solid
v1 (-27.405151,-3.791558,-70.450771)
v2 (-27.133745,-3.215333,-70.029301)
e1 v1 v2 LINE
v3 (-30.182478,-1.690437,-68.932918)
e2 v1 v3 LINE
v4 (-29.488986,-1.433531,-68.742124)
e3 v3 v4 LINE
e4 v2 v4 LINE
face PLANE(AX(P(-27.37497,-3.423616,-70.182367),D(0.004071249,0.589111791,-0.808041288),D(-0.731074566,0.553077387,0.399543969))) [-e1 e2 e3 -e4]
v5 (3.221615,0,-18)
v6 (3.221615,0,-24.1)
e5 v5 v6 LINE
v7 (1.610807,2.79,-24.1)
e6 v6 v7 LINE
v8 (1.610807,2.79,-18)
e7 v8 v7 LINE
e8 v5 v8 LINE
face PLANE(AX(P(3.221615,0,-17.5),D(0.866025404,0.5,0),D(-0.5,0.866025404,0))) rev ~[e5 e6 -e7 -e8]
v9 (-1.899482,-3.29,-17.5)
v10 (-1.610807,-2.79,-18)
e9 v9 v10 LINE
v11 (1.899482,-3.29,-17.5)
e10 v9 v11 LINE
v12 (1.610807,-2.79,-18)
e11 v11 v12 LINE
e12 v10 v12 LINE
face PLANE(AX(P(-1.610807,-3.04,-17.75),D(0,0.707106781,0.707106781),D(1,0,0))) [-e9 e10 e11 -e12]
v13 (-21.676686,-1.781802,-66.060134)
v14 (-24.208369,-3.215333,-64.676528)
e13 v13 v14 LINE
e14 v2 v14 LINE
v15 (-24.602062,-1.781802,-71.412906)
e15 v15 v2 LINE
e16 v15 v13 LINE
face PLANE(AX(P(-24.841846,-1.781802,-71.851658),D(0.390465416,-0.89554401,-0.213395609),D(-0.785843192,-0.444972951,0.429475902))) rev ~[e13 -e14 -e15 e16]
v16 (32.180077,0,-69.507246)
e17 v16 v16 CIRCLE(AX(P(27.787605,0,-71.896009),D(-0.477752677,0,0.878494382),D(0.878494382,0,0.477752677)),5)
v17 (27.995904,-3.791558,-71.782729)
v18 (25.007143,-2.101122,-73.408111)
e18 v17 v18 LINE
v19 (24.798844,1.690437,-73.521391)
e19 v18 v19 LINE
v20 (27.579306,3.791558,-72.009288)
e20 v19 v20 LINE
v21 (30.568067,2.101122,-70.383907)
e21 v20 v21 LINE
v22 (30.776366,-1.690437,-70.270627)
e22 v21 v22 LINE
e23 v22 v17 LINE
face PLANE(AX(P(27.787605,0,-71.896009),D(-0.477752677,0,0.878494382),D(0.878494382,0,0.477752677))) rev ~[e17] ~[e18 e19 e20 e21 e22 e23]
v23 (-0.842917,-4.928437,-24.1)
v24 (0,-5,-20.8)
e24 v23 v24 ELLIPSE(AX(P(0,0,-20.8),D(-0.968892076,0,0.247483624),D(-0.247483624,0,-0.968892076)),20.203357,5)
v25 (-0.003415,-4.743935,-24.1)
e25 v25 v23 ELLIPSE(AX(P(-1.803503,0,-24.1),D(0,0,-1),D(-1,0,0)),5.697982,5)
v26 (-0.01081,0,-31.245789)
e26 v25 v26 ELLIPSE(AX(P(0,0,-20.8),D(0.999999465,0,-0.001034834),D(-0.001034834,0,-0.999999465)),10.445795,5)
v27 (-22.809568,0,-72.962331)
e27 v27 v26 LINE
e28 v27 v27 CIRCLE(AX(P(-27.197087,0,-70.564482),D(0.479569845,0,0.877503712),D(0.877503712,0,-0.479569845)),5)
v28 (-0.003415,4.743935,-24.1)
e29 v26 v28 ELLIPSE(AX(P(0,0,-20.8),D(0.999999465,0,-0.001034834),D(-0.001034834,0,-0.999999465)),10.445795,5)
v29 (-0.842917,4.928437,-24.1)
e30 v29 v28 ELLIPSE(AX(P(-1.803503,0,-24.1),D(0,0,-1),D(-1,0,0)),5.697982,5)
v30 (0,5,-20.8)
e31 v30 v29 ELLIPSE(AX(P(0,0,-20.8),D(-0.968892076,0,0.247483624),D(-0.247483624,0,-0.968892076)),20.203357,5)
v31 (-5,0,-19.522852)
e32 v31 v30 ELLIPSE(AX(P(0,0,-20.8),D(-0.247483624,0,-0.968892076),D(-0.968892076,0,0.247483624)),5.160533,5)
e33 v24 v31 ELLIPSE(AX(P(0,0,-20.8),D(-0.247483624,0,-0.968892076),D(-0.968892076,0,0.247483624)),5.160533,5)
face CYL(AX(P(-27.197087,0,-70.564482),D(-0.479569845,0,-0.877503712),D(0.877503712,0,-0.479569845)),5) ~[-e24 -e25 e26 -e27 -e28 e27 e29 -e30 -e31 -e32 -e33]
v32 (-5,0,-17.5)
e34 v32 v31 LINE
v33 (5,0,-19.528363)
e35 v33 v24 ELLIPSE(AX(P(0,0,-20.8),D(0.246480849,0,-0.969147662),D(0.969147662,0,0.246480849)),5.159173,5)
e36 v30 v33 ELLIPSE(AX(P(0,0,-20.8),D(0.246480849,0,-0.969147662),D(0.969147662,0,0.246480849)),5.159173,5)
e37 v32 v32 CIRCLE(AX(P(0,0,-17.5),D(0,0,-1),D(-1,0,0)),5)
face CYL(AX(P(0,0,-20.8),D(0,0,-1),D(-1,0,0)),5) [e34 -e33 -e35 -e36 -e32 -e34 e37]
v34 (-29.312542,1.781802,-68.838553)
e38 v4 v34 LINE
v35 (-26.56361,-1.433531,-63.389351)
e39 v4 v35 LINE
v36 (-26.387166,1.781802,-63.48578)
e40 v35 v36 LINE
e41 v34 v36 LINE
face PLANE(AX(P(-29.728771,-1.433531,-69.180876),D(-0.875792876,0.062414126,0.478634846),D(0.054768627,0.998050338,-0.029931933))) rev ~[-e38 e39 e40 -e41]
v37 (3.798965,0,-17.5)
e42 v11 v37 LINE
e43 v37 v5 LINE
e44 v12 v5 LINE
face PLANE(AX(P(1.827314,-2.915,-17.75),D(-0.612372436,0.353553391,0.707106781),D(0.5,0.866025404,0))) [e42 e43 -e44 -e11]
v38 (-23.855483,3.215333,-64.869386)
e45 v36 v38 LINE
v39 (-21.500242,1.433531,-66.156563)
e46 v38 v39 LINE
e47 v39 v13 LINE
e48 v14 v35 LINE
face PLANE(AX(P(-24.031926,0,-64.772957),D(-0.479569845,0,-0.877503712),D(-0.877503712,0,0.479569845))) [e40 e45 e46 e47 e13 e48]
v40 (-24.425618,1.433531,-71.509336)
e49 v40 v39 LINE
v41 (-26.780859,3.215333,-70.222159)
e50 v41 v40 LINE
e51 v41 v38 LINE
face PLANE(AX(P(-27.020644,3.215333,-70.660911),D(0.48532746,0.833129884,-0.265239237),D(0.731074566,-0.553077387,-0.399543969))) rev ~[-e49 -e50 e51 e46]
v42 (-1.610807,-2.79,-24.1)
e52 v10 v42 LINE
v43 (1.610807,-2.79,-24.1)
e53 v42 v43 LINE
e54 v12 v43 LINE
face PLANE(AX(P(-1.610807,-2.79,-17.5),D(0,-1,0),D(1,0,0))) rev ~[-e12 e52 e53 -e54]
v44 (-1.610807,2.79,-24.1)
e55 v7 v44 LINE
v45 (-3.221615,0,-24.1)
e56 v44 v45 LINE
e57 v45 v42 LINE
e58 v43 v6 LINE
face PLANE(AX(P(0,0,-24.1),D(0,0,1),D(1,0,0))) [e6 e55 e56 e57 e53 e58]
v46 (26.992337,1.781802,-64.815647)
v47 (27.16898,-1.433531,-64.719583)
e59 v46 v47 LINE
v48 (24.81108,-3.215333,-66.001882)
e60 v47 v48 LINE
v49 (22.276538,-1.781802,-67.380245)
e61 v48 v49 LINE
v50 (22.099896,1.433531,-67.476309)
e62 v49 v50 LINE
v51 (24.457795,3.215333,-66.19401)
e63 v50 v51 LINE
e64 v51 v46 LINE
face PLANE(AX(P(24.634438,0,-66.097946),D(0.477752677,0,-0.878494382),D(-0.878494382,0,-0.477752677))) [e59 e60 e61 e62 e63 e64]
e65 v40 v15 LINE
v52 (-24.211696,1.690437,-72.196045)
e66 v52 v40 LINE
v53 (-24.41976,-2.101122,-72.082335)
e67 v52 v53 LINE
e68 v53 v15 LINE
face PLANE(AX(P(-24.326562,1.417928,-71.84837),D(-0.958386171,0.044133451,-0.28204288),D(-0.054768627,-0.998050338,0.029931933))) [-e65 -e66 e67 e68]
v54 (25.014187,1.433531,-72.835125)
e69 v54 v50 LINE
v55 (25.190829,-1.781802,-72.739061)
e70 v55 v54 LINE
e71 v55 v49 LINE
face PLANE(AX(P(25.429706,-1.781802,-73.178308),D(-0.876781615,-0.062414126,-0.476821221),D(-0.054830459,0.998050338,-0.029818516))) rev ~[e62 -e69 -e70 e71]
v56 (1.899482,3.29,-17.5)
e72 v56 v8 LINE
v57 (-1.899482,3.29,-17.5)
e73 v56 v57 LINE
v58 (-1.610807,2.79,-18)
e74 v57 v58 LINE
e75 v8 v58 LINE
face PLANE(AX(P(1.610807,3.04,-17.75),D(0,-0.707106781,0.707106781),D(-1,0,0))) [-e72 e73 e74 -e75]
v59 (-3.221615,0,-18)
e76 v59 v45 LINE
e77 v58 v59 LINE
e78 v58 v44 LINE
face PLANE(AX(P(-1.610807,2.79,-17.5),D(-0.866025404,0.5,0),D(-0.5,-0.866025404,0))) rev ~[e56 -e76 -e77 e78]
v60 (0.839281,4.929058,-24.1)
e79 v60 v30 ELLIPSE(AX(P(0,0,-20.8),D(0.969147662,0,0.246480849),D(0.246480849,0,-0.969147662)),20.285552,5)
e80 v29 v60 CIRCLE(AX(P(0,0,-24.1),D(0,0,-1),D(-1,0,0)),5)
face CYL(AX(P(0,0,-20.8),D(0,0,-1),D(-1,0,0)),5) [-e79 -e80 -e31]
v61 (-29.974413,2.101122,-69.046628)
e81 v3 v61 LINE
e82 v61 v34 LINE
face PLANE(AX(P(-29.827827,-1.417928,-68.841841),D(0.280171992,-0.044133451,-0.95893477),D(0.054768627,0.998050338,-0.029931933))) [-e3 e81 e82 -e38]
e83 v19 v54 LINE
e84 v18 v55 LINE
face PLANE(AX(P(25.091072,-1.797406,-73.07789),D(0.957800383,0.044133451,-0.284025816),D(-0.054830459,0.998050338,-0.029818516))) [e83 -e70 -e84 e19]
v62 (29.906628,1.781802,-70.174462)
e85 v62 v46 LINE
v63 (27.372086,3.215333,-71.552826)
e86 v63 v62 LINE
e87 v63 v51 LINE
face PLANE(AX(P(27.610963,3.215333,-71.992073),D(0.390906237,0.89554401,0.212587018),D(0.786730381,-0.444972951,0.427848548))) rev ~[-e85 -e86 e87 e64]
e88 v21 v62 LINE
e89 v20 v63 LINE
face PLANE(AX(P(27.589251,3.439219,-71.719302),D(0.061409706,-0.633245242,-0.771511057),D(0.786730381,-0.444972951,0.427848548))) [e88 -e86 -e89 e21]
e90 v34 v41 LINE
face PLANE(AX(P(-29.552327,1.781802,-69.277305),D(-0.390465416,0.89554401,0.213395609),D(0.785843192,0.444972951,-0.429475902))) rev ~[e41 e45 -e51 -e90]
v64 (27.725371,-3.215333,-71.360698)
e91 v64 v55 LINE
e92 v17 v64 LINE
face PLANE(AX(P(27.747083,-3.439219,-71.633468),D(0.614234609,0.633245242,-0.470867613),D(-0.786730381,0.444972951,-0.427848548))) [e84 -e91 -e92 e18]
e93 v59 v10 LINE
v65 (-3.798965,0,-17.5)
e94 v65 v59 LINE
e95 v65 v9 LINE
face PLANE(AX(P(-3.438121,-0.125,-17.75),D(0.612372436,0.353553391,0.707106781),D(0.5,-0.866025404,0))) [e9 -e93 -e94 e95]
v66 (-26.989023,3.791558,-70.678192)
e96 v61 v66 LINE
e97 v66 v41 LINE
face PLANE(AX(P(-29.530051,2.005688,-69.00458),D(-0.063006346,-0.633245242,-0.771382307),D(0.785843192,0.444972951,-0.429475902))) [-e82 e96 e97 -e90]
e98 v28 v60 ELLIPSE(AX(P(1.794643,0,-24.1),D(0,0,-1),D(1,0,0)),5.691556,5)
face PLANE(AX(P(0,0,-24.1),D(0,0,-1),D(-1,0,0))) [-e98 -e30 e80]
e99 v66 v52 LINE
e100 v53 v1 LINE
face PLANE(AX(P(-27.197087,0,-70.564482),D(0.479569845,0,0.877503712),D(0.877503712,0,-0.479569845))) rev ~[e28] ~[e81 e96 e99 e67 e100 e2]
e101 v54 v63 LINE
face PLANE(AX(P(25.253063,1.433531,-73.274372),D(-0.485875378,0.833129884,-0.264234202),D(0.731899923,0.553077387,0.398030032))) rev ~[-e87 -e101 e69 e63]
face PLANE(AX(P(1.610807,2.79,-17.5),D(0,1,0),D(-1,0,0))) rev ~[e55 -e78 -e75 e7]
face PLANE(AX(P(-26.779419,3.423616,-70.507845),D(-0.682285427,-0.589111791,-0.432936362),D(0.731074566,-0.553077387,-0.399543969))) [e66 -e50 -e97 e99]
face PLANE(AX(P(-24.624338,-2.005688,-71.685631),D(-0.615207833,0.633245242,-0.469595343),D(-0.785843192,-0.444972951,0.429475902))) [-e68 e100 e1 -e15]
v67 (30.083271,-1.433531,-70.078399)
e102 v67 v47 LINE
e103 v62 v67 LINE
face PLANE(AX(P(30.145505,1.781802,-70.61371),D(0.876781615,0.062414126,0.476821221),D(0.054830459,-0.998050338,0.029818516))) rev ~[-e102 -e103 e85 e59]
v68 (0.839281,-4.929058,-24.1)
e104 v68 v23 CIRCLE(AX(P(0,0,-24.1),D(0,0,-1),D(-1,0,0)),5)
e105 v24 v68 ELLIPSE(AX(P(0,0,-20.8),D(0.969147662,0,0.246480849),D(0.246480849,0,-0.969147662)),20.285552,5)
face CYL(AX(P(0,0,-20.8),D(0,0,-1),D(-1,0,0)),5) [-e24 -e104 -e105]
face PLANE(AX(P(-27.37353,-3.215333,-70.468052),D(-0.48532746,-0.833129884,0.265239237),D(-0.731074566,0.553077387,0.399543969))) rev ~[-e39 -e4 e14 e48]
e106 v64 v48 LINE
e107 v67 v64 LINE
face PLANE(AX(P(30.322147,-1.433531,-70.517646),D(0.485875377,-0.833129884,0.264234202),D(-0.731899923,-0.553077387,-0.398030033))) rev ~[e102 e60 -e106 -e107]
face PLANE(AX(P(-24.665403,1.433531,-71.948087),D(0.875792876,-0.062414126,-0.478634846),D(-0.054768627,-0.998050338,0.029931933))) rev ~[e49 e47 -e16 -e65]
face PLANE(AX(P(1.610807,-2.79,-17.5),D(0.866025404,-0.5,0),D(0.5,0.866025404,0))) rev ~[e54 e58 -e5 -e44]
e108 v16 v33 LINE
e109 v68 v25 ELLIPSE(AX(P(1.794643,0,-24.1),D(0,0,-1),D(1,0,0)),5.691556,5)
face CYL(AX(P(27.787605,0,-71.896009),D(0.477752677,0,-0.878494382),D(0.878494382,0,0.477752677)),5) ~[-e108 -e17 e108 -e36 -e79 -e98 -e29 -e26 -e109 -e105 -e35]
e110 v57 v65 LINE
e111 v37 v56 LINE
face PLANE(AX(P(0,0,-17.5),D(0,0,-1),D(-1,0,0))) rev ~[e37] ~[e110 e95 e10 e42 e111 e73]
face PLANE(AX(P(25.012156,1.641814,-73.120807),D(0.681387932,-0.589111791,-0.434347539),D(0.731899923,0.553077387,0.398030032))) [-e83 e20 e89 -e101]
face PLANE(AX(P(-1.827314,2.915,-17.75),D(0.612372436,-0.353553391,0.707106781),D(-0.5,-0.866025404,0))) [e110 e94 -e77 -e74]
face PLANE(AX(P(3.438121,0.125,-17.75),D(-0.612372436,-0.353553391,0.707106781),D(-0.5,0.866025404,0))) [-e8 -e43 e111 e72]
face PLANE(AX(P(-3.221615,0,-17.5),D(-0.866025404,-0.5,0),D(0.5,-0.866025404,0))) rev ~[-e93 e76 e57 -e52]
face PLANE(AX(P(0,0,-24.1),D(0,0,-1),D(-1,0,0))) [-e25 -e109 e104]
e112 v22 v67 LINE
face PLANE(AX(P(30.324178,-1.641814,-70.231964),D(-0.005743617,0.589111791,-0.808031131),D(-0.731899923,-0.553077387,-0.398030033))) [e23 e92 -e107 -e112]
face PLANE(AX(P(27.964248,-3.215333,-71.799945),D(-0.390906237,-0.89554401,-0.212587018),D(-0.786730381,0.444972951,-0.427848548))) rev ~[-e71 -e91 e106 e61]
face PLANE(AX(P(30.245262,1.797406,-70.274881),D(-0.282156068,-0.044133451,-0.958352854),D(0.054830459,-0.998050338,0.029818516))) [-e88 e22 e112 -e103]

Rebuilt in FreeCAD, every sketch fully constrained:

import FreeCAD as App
import Part
import Sketcher
Q = App.Units.Quantity


def edges_at(feature, points):
    """Names of the edges that pass closest to the given points."""
    edges = feature.Shape.Edges
    near = lambda p: min(range(len(edges)), key=lambda i: edges[i].distToShape(Part.Vertex(*p))[0])
    return sorted({f"Edge{near(p) + 1}" for p in points})


def add_polygon(sketch, points):
    """Adds a closed chain of lines whose ends are joined by coincident constraints."""
    first, n = sketch.GeometryCount, len(points)
    for a, b in zip(points, points[1:] + points[:1]):
        sketch.addGeometry(Part.LineSegment(App.Vector(*a, 0), App.Vector(*b, 0)), False)
    for i in range(n):
        sketch.addConstraint(Sketcher.Constraint("Coincident", first + i, 2, first + (i + 1) % n, 1))

doc = App.newDocument("Part")
body = doc.addObject("PartDesign::Body", "Body")

# Sketch on XZ plane
sketch1 = body.newObject("Sketcher::SketchObject", "Sketch")
sketch1.AttachmentSupport = (doc.getObject("XZ_Plane"), [""])
sketch1.MapMode = "FlatFace"
add_polygon(sketch1, [(-5, -24), (-5, -18), (0, -18), (0, -24)])  # lines 0-3
sketch1.addConstraint(Sketcher.Constraint("Vertical", 0))
sketch1.addConstraint(Sketcher.Constraint("Horizontal", 1))
sketch1.addConstraint(Sketcher.Constraint("Vertical", 2))
sketch1.addConstraint(Sketcher.Constraint("Horizontal", 3))
sketch1.addConstraint(Sketcher.Constraint("PointOnObject", 1, 2, -2))
sketch1.addConstraint(Sketcher.Constraint("DistanceX", 1, 1, 1, 2, 5.0))
sketch1.addConstraint(Sketcher.Constraint("DistanceY", 0, 1, 0, 2, 6.6))
sketch1.addConstraint(Sketcher.Constraint("DistanceY", 0, 2, -1, 1, 17.5))
revolution = body.newObject("PartDesign::Revolution", "Revolution")
revolution.Profile = sketch1
revolution.ReferenceAxis = (sketch1, ["V_Axis"])
revolution.Angle = 360

# Sketch on an angled plane
sketch2 = body.newObject("Sketcher::SketchObject", "Sketch001")
sketch2.Placement = App.Placement(App.Vector(-35.950233, 0, -65.780747), App.Rotation(App.Vector(0.877503712, 0, -0.479569845), App.Vector(0, 1.000000001, 0), App.Vector(0.479569845, 0, 0.877503712), "ZXY"))
sketch2.addGeometry(Part.Circle(App.Vector(10, 0, 0), App.Vector(0, 0, 1), 5), False)
sketch2.addConstraint(Sketcher.Constraint("PointOnObject", 0, 3, -1))
sketch2.addConstraint(Sketcher.Constraint("Diameter", 0, 10.0))
sketch2.addConstraint(Sketcher.Constraint("DistanceX", -1, 1, 0, 3, 9.975053))
pad1 = body.newObject("PartDesign::Pad", "Pad")
pad1.Profile = sketch2
pad1.Length = 56.71142

# Sketch on an angled plane
sketch3 = body.newObject("Sketcher::SketchObject", "Sketch002")
sketch3.Placement = App.Placement(App.Vector(36.517428, 0, -67.148458), App.Rotation(App.Vector(0.878494382, 0, 0.477752677), App.Vector(0, 1, 0), App.Vector(-0.477752677, 0, 0.878494382), "ZXY"))
sketch3.addGeometry(Part.Circle(App.Vector(-10, 0, 0), App.Vector(0, 0, 1), 5), False)
sketch3.addConstraint(Sketcher.Constraint("PointOnObject", 0, 3, -1))
sketch3.addConstraint(Sketcher.Constraint("Diameter", 0, 10.0))
sketch3.addConstraint(Sketcher.Constraint("DistanceX", 0, 3, -1, 1, 9.937256))
pad2 = body.newObject("PartDesign::Pad", "Pad001")
pad2.Profile = sketch3
pad2.Type = "UpToFirst"

# Sketch on an angled plane
sketch4 = body.newObject("Sketcher::SketchObject", "Sketch003")
sketch4.Placement = App.Placement(App.Vector(-35.950233, 0, -65.780747), App.Rotation(App.Vector(-0.877503712, 0, 0.479569845), App.Vector(0, 1.000000001, 0), App.Vector(-0.479569845, 0, -0.877503712), "ZXY"))
add_polygon(sketch4, [(-7.3, 1.8), (-10.2, 3.2), (-12.9, 1.4), (-12.7, -1.8), (-9.8, -3.2), (-7.1, -1.4)])  # lines 0-5
sketch4.addConstraint(Sketcher.Constraint("Parallel", 0, 3))
sketch4.addConstraint(Sketcher.Constraint("Parallel", 1, 4))
sketch4.addConstraint(Sketcher.Constraint("Parallel", 2, 5))
sketch4.addConstraint(Sketcher.Constraint("Equal", 0, 1))
sketch4.addConstraint(Sketcher.Constraint("Equal", 1, 2))
sketch4.addConstraint(Sketcher.Constraint("Equal", 2, 3))
sketch4.addConstraint(Sketcher.Constraint("DistanceX", 1, 2, -1, 1, 12.86015))
sketch4.addConstraint(Sketcher.Constraint("DistanceY", -1, 1, 1, 2, 1.433531))
sketch4.addConstraint(Sketcher.Constraint("DistanceX", 3, 2, -1, 1, 9.773979))
sketch4.addConstraint(Sketcher.Constraint("DistanceY", 4, 2, -1, 1, 1.433531))
sketch4.addConstraint(Sketcher.Constraint("DistanceX", 5, 2, -1, 1, 7.291029))
sketch4.addConstraint(Sketcher.Constraint("DistanceY", 3, 2, 2, 2, 1.433531))
pocket1 = body.newObject("PartDesign::Pocket", "Pocket")
pocket1.Profile = sketch4
pocket1.Length = 6.6

# Sketch on an angled plane
sketch5 = body.newObject("Sketcher::SketchObject", "Sketch004")
sketch5.Placement = App.Placement(App.Vector(36.517428, 0, -67.148458), App.Rotation(App.Vector(-0.878494382, 0, -0.477752677), App.Vector(0, 1, 0), App.Vector(0.477752677, 0, -0.878494382), "ZXY"))
add_polygon(sketch5, [(9.7, -3.2), (12.6, -1.8), (12.8, 1.4), (10.1, 3.2), (7.3, 1.8), (7.1, -1.4)])  # lines 0-5
sketch5.addConstraint(Sketcher.Constraint("Parallel", 0, 3))
sketch5.addConstraint(Sketcher.Constraint("Parallel", 1, 4))
sketch5.addConstraint(Sketcher.Constraint("Parallel", 2, 5))
sketch5.addConstraint(Sketcher.Constraint("Equal", 0, 1))
sketch5.addConstraint(Sketcher.Constraint("Equal", 1, 2))
sketch5.addConstraint(Sketcher.Constraint("Equal", 2, 3))
sketch5.addConstraint(Sketcher.Constraint("DistanceX", -1, 1, 0, 2, 12.621279))
sketch5.addConstraint(Sketcher.Constraint("DistanceY", -1, 1, 1, 2, 1.433531))
sketch5.addConstraint(Sketcher.Constraint("DistanceX", -1, 1, 2, 2, 10.13833))
sketch5.addConstraint(Sketcher.Constraint("DistanceX", -1, 1, 4, 2, 7.052158))
sketch5.addConstraint(Sketcher.Constraint("DistanceY", 4, 2, -1, 1, 1.433531))
sketch5.addConstraint(Sketcher.Constraint("DistanceX", -1, 1, 5, 2, 9.736181))
pocket2 = body.newObject("PartDesign::Pocket", "Pocket001")
pocket2.Profile = sketch5
pocket2.Length = 6.6

# Sketch on XY plane
sketch6 = body.newObject("Sketcher::SketchObject", "Sketch005")
sketch6.AttachmentSupport = (doc.getObject("XY_Plane"), [""])
sketch6.MapMode = "FlatFace"
sketch6.AttachmentOffset = App.Placement(App.Vector(0, 0, -17.5), App.Rotation())
add_polygon(sketch6, [(1.6, 2.8), (-1.6, 2.8), (-3.2, 0), (-1.6, -2.8), (1.6, -2.8), (3.2, 0)])  # lines 0-5
sketch6.addConstraint(Sketcher.Constraint("Horizontal", 0))
sketch6.addConstraint(Sketcher.Constraint("Horizontal", 3))
sketch6.addConstraint(Sketcher.Constraint("Symmetric", 0, 2, 3, 2, -1, 1))
sketch6.addConstraint(Sketcher.Constraint("Symmetric", 1, 2, 4, 2, -1, 1))
sketch6.addConstraint(Sketcher.Constraint("PointOnObject", 1, 2, -1))
sketch6.addConstraint(Sketcher.Constraint("Parallel", 2, 5))
sketch6.addConstraint(Sketcher.Constraint("Vertical", 0, 2, 2, 2))
sketch6.addConstraint(Sketcher.Constraint("Angle", 1, Q("-120 deg")))
sketch6.addConstraint(Sketcher.Constraint("DistanceY", -1, 1, 0, 2, 2.79))
sketch6.addConstraint(Sketcher.Constraint("DistanceX", 0, 2, 0, 1, 3.221615))
pocket3 = body.newObject("PartDesign::Pocket", "Pocket002")
pocket3.Profile = sketch6
pocket3.Length = 6.6
doc.recompute()

chamfer = body.newObject("PartDesign::Chamfer", "Chamfer")
chamfer.Base = (pocket3, edges_at(pocket3, [
    (-29.641, 0.174, -69.229),
    (-28.286, 2.499, -69.969),
    (-25.843, 2.324, -71.304),
    (-24.754, -0.174, -71.9),
    (-26.108, -2.499, -71.16),
    (-28.551, -2.324, -69.824),
    (26.697, -2.499, -72.489),
    (25.341, -0.174, -73.226),
    (26.432, 2.324, -72.633),
    (28.878, 2.499, -71.303),
    (30.234, 0.174, -70.566),
    (29.143, -2.324, -71.159),
    (2.416, 1.395, -17.5),
    (0, 2.79, -17.5),
    (-2.416, 1.395, -17.5),
    (-2.416, -1.395, -17.5),
    (0, -2.79, -17.5),
    (2.416, -1.395, -17.5),
]))
chamfer.Size = 0.5

doc.recompute()
